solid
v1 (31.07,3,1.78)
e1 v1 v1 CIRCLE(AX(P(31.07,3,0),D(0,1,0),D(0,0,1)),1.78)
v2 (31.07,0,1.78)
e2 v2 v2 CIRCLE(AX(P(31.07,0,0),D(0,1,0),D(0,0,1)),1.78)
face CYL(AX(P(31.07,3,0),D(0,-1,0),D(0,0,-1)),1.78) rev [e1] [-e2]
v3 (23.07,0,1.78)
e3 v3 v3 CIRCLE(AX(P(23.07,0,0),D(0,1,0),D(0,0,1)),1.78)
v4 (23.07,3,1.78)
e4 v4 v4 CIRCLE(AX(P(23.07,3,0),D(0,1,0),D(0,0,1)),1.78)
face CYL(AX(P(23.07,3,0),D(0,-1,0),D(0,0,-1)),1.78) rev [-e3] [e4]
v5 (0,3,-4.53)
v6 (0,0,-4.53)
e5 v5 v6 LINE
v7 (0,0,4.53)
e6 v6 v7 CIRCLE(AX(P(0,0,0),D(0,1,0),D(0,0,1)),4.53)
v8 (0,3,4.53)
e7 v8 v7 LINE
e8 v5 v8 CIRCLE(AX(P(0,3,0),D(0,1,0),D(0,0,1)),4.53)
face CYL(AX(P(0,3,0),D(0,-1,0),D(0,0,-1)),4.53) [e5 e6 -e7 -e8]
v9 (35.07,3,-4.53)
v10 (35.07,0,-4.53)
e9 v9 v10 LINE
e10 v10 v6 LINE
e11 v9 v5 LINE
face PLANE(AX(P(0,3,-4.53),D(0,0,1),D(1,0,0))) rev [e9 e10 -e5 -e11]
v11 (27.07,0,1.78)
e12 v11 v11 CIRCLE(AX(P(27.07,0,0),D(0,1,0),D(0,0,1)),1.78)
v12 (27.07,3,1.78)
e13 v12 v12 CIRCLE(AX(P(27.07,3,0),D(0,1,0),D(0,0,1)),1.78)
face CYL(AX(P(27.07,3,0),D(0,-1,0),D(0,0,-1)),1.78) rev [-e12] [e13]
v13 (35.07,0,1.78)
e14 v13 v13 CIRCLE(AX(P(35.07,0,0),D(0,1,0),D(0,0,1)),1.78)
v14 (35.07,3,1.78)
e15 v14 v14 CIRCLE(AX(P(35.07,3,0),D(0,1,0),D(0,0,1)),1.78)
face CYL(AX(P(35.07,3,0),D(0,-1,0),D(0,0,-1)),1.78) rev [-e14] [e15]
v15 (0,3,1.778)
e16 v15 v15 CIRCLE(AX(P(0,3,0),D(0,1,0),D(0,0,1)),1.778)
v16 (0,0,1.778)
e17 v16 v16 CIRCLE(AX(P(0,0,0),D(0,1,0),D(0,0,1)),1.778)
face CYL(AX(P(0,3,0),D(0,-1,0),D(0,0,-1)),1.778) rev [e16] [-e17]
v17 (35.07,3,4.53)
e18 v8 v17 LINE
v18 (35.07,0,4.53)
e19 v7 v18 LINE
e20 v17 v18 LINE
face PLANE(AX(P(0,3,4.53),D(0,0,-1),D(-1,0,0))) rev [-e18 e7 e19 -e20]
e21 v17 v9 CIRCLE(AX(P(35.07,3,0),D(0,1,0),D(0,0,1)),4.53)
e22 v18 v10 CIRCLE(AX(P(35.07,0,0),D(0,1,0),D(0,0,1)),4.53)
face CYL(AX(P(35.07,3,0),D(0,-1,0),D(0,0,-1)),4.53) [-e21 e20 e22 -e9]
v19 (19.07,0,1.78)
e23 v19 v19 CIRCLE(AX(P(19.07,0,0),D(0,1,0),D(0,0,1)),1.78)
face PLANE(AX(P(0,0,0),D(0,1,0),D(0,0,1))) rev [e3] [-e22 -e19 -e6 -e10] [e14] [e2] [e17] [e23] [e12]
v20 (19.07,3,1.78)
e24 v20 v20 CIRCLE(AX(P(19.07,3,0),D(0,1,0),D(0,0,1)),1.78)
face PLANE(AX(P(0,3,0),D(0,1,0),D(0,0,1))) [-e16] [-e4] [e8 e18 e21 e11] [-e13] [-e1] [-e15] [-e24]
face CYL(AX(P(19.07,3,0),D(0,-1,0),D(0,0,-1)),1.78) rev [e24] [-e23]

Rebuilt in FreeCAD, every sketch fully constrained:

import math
import FreeCAD as App
import Part
import Sketcher
Q = App.Units.Quantity

doc = App.newDocument("Part")
body = doc.addObject("PartDesign::Body", "Body")

# Sketch on XZ plane
sketch1 = doc.addObject("Sketcher::SketchObject", "Sketch")
body.addObject(sketch1)
sketch1.AttachmentSupport = (doc.XZ_Plane, [""])
sketch1.MapMode = "FlatFace"
sketch1.addGeometry([
    Part.LineSegment(App.Vector(35.1, -4.5, 0), App.Vector(0, -4.5, 0)),  # 0
    Part.ArcOfCircle(Part.Circle(App.Vector(0, 0, 0), App.Vector(0, 0, 1), 4.5), math.radians(90), math.radians(270)),  # 1
    Part.LineSegment(App.Vector(0, 4.5, 0), App.Vector(35.1, 4.5, 0)),  # 2
    Part.ArcOfCircle(Part.Circle(App.Vector(35.1, 0, 0), App.Vector(0, 0, 1), 4.5), math.radians(-90), math.radians(90)),  # 3
    Part.Circle(App.Vector(35.1, 0, 0), App.Vector(0, 0, 1), 1.8),  # 4
    Part.Circle(App.Vector(31.1, 0, 0), App.Vector(0, 0, 1), 1.8),  # 5
    Part.Circle(App.Vector(27.1, 0, 0), App.Vector(0, 0, 1), 1.8),  # 6
    Part.Circle(App.Vector(23.1, 0, 0), App.Vector(0, 0, 1), 1.8),  # 7
    Part.Circle(App.Vector(19.1, 0, 0), App.Vector(0, 0, 1), 1.8),  # 8
    Part.Circle(App.Vector(0, 0, 0), App.Vector(0, 0, 1), 1.8),  # 9
], False)
sketch1.addConstraint([
    Sketcher.Constraint("Tangent", 0, 2, 1, 2),
    Sketcher.Constraint("Tangent", 1, 1, 2, 1),
    Sketcher.Constraint("Tangent", 2, 2, 3, 2),
    Sketcher.Constraint("Tangent", 3, 1, 0, 1),
    Sketcher.Constraint("Horizontal", 0),
    Sketcher.Constraint("Horizontal", 2),
    Sketcher.Constraint("Coincident", 1, 3, -1, 1),
    Sketcher.Constraint("Coincident", 9, 3, -1, 1),
    Sketcher.Constraint("Coincident", 4, 3, 3, 3),
    Sketcher.Constraint("Equal", 4, 5),
    Sketcher.Constraint("Equal", 5, 6),
    Sketcher.Constraint("Equal", 6, 7),
    Sketcher.Constraint("Equal", 7, 8),
    Sketcher.Constraint("PointOnObject", 5, 3, -1),
    Sketcher.Constraint("PointOnObject", 6, 3, -1),
    Sketcher.Constraint("PointOnObject", 7, 3, -1),
    Sketcher.Constraint("PointOnObject", 8, 3, -1),
    Sketcher.Constraint("Diameter", 4, Q("3.56 mm")),
    Sketcher.Constraint("Radius", 1, Q("4.53 mm")),
    Sketcher.Constraint("Diameter", 9, Q("3.556 mm")),
    Sketcher.Constraint("DistanceX", 5, 3, 3, 3, Q("4 mm")),
    Sketcher.Constraint("DistanceX", 6, 3, 5, 3, Q("4 mm")),
    Sketcher.Constraint("DistanceX", 7, 3, 6, 3, Q("4 mm")),
    Sketcher.Constraint("DistanceX", 8, 3, 7, 3, Q("4 mm")),
    Sketcher.Constraint("DistanceX", 0, 2, 0, 1, Q("35.07 mm")),
])
pad1 = doc.addObject("PartDesign::Pad", "Pad")
body.addObject(pad1)
pad1.Profile = sketch1
pad1.Length = 3
pad1.Reversed = True

doc.recompute()
